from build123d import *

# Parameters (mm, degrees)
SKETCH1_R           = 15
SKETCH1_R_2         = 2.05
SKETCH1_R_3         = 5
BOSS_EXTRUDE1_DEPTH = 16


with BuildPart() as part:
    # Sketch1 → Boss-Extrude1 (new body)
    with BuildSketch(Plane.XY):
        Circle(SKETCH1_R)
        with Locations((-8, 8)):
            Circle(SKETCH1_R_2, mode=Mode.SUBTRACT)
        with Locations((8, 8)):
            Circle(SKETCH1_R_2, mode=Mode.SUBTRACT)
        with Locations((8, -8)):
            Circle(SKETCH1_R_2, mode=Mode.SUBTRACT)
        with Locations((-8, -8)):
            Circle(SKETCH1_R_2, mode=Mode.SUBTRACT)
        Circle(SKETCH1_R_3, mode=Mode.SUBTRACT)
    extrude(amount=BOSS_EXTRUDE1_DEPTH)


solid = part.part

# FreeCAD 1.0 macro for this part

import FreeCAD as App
import Part
import Sketcher
from FreeCAD import Vector

doc = App.newDocument("Part")
body = doc.addObject("PartDesign::Body", "Body")

sketch1 = body.newObject("Sketcher::SketchObject", "Sketch")
sketch1.AttachmentSupport = (doc.getObject("XY_Plane"), [""])
sketch1.MapMode = "FlatFace"
sketch1.addGeometry([
    Part.Circle(Vector(0, 0, 0), Vector(0, 0, 1), 15),
    Part.Circle(Vector(-8, -8, 0), Vector(0, 0, 1), 2.05),
    Part.Circle(Vector(8, -8, 0), Vector(0, 0, 1), 2.05),
    Part.Circle(Vector(-8, 8, 0), Vector(0, 0, 1), 2.05),
    Part.Circle(Vector(0, 0, 0), Vector(0, 0, 1), 5),
    Part.Circle(Vector(8, 8, 0), Vector(0, 0, 1), 2.05),
], False)
sketch1.addConstraint([
    Sketcher.Constraint("Coincident", 0, 3, -1, 1),
    Sketcher.Constraint("Coincident", 4, 3, -1, 1),
    Sketcher.Constraint("Equal", 1, 2),
    Sketcher.Constraint("Equal", 2, 3),
    Sketcher.Constraint("Equal", 3, 5),
    Sketcher.Constraint("Symmetric", 2, 3, 3, 3, -1, 1),
    Sketcher.Constraint("Symmetric", 1, 3, 5, 3, -1, 1),
    Sketcher.Constraint("Symmetric", 1, 3, 2, 3, -2),
    Sketcher.Constraint("Diameter", 0, 30.0),
    Sketcher.Constraint("Diameter", 4, 10.0),
    Sketcher.Constraint("Diameter", 1, 4.1),
    Sketcher.Constraint("DistanceX", 1, 3, -1, 1, 8.0),
    Sketcher.Constraint("DistanceY", 1, 3, -1, 1, 8.0),
])
pad1 = body.newObject("PartDesign::Pad", "Pad")
pad1.Profile = sketch1
pad1.Length = 16

doc.recompute()
